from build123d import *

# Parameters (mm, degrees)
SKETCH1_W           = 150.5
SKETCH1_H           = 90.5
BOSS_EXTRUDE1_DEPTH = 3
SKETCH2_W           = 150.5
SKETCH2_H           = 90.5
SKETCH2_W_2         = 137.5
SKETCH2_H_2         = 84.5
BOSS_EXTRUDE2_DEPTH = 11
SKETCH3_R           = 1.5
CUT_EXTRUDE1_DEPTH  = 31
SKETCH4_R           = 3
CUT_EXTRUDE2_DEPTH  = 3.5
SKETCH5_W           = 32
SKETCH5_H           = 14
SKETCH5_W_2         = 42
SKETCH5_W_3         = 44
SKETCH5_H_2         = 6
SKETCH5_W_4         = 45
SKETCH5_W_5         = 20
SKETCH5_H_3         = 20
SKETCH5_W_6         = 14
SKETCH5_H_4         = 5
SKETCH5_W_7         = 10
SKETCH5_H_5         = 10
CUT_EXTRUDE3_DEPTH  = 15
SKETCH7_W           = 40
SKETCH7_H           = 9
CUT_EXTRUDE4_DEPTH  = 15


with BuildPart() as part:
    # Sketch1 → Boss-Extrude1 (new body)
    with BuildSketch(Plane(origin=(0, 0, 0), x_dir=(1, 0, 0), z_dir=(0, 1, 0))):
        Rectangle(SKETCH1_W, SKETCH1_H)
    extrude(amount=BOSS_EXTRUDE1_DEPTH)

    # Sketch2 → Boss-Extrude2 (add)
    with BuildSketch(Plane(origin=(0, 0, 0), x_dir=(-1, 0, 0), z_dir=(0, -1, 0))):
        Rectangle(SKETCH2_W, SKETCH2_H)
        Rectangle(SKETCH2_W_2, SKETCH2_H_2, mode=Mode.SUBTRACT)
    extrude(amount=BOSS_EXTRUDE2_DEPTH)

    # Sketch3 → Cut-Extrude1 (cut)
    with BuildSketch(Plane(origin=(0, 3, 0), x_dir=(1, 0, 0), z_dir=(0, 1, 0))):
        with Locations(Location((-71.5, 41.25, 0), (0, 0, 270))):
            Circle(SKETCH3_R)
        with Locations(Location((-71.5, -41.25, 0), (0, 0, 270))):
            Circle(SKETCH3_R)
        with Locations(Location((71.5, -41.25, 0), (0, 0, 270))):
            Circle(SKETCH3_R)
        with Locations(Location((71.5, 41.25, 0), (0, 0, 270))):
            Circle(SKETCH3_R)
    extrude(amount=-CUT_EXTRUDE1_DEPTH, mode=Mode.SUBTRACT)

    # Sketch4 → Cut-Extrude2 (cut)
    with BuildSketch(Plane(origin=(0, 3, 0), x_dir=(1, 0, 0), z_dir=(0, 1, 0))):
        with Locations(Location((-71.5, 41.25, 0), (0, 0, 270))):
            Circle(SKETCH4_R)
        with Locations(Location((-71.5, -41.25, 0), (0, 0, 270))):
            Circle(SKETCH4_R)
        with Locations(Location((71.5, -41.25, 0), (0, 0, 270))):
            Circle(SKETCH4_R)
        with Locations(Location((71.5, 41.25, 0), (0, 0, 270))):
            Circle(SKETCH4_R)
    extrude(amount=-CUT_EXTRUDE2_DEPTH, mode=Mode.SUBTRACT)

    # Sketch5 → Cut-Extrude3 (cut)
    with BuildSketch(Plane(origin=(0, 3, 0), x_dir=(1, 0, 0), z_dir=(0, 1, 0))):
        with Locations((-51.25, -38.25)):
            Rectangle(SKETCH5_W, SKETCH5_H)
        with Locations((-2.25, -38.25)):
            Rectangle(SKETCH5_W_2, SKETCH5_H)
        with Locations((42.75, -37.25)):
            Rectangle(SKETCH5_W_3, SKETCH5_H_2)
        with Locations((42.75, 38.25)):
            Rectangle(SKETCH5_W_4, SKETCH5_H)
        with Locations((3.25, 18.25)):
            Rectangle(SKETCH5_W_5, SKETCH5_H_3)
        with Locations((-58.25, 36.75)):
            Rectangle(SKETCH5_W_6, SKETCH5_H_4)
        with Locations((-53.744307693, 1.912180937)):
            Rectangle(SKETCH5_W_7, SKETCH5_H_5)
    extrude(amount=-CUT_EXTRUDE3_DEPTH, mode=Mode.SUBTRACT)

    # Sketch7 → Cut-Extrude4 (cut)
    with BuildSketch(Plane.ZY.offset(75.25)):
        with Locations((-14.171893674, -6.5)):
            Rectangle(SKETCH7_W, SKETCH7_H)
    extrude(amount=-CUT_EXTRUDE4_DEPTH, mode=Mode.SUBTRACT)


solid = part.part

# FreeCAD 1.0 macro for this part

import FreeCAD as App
import Part
import Sketcher

V = App.Vector
Q = App.Units.Quantity

doc = App.newDocument("Part")
body = doc.addObject("PartDesign::Body", "Body")

# Sketch on XZ plane
sketch1 = body.newObject("Sketcher::SketchObject", "Sketch")
sketch1.AttachmentSupport = (doc.getObject("XZ_Plane"), [""])
sketch1.MapMode = "FlatFace"
sketch1.addGeometry([
    Part.LineSegment(V(-75, -45, 0), V(-75, 45, 0)),
    Part.LineSegment(V(-75, 45, 0), V(75, 45, 0)),
    Part.LineSegment(V(75, 45, 0), V(75, -45, 0)),
    Part.LineSegment(V(75, -45, 0), V(-75, -45, 0)),
], False)
sketch1.addConstraint([
    Sketcher.Constraint("Coincident", 0, 2, 1, 1),
    Sketcher.Constraint("Coincident", 1, 2, 2, 1),
    Sketcher.Constraint("Coincident", 2, 2, 3, 1),
    Sketcher.Constraint("Coincident", 3, 2, 0, 1),
    Sketcher.Constraint("Vertical", 0),
    Sketcher.Constraint("Horizontal", 1),
    Sketcher.Constraint("Vertical", 2),
    Sketcher.Constraint("Horizontal", 3),
    Sketcher.Constraint("Symmetric", 0, 2, 2, 2, -1, 1),
    Sketcher.Constraint("DistanceX", 1, 1, 1, 2, Q("150.5 mm")),
    Sketcher.Constraint("DistanceY", 0, 1, 0, 2, Q("90.5 mm")),
])
pad1 = body.newObject("PartDesign::Pad", "Pad")
pad1.Profile = sketch1
pad1.Length = 3
pad1.Reversed = True

# Sketch on XZ plane
sketch2 = body.newObject("Sketcher::SketchObject", "Sketch001")
sketch2.AttachmentSupport = (doc.getObject("XZ_Plane"), [""])
sketch2.MapMode = "FlatFace"
sketch2.addGeometry([
    Part.LineSegment(V(75, -45, 0), V(75, 45, 0)),  # 0
    Part.LineSegment(V(75, 45, 0), V(-75, 45, 0)),  # 1
    Part.LineSegment(V(-75, 45, 0), V(-75, -45, 0)),  # 2
    Part.LineSegment(V(-75, -45, 0), V(75, -45, 0)),  # 3
    Part.LineSegment(V(-69, 42, 0), V(69, 42, 0)),  # 4
    Part.LineSegment(V(69, 42, 0), V(69, -42, 0)),  # 5
    Part.LineSegment(V(69, -42, 0), V(-69, -42, 0)),  # 6
    Part.LineSegment(V(-69, -42, 0), V(-69, 42, 0)),  # 7
], False)
sketch2.addConstraint([
    Sketcher.Constraint("Coincident", 0, 2, 1, 1),
    Sketcher.Constraint("Coincident", 1, 2, 2, 1),
    Sketcher.Constraint("Coincident", 2, 2, 3, 1),
    Sketcher.Constraint("Coincident", 3, 2, 0, 1),
    Sketcher.Constraint("Coincident", 4, 2, 5, 1),
    Sketcher.Constraint("Coincident", 5, 2, 6, 1),
    Sketcher.Constraint("Coincident", 6, 2, 7, 1),
    Sketcher.Constraint("Coincident", 7, 2, 4, 1),
    Sketcher.Constraint("Vertical", 0),
    Sketcher.Constraint("Horizontal", 1),
    Sketcher.Constraint("Vertical", 2),
    Sketcher.Constraint("Horizontal", 3),
    Sketcher.Constraint("Horizontal", 4),
    Sketcher.Constraint("Vertical", 5),
    Sketcher.Constraint("Horizontal", 6),
    Sketcher.Constraint("Vertical", 7),
    Sketcher.Constraint("Symmetric", 0, 2, 2, 2, -1, 1),
    Sketcher.Constraint("Symmetric", 4, 2, 6, 2, -1, 1),
    Sketcher.Constraint("DistanceX", 1, 2, 1, 1, Q("150.5 mm")),
    Sketcher.Constraint("DistanceX", 4, 1, 4, 2, Q("137.5 mm")),
    Sketcher.Constraint("DistanceY", 0, 1, 0, 2, Q("90.5 mm")),
    Sketcher.Constraint("DistanceY", 5, 2, 5, 1, Q("84.5 mm")),
])
pad2 = body.newObject("PartDesign::Pad", "Pad001")
pad2.Profile = sketch2
pad2.Length = 11

# Sketch on XZ plane
sketch3 = body.newObject("Sketcher::SketchObject", "Sketch002")
sketch3.AttachmentSupport = (doc.getObject("XZ_Plane"), [""])
sketch3.MapMode = "FlatFace"
sketch3.AttachmentOffset = App.Placement(V(0, 0, -3), App.Rotation())
sketch3.addGeometry([
    Part.Circle(V(-71.5, -41.2, 0), V(0, 0, 1), 1.5),
    Part.Circle(V(-71.5, 41.2, 0), V(0, 0, 1), 1.5),
    Part.Circle(V(71.5, 41.2, 0), V(0, 0, 1), 1.5),
    Part.Circle(V(71.5, -41.2, 0), V(0, 0, 1), 1.5),
], False)
sketch3.addConstraint([
    Sketcher.Constraint("Equal", 0, 1),
    Sketcher.Constraint("Equal", 1, 2),
    Sketcher.Constraint("Equal", 2, 3),
    Sketcher.Constraint("Symmetric", 0, 3, 2, 3, -1, 1),
    Sketcher.Constraint("Symmetric", 1, 3, 3, 3, -1, 1),
    Sketcher.Constraint("Symmetric", 1, 3, 2, 3, -2),
    Sketcher.Constraint("Diameter", 0, Q("3 mm")),
    Sketcher.Constraint("DistanceX", 1, 3, 2, 3, Q("143 mm")),
    Sketcher.Constraint("DistanceY", 0, 3, 1, 3, Q("82.5 mm")),
])
pocket1 = body.newObject("PartDesign::Pocket", "Pocket")
pocket1.Profile = sketch3
pocket1.Length = 31
pocket1.Reversed = True

# Sketch on XZ plane
sketch4 = body.newObject("Sketcher::SketchObject", "Sketch003")
sketch4.AttachmentSupport = (doc.getObject("XZ_Plane"), [""])
sketch4.MapMode = "FlatFace"
sketch4.AttachmentOffset = App.Placement(V(0, 0, -3), App.Rotation())
sketch4.addGeometry([
    Part.Circle(V(-71.5, -41.2, 0), V(0, 0, 1), 3),
    Part.Circle(V(-71.5, 41.2, 0), V(0, 0, 1), 3),
    Part.Circle(V(71.5, 41.2, 0), V(0, 0, 1), 3),
    Part.Circle(V(71.5, -41.2, 0), V(0, 0, 1), 3),
], False)
sketch4.addConstraint([
    Sketcher.Constraint("Equal", 0, 1),
    Sketcher.Constraint("Equal", 1, 2),
    Sketcher.Constraint("Equal", 2, 3),
    Sketcher.Constraint("Symmetric", 0, 3, 2, 3, -1, 1),
    Sketcher.Constraint("Symmetric", 1, 3, 3, 3, -1, 1),
    Sketcher.Constraint("Symmetric", 1, 3, 2, 3, -2),
    Sketcher.Constraint("Diameter", 0, Q("6 mm")),
    Sketcher.Constraint("DistanceX", 1, 3, 2, 3, Q("143 mm")),
    Sketcher.Constraint("DistanceY", 0, 3, 1, 3, Q("82.5 mm")),
])
pocket2 = body.newObject("PartDesign::Pocket", "Pocket001")
pocket2.Profile = sketch4
pocket2.Length = 3.5
pocket2.Reversed = True

# Sketch on XZ plane
sketch5 = body.newObject("Sketcher::SketchObject", "Sketch004")
sketch5.AttachmentSupport = (doc.getObject("XZ_Plane"), [""])
sketch5.MapMode = "FlatFace"
sketch5.AttachmentOffset = App.Placement(V(0, 0, -3), App.Rotation())
sketch5.addGeometry([
    Part.LineSegment(V(-67, 31, 0), V(-67, 45, 0)),  # 0
    Part.LineSegment(V(-67, 45, 0), V(-35, 45, 0)),  # 1
    Part.LineSegment(V(-35, 45, 0), V(-35, 31, 0)),  # 2
    Part.LineSegment(V(-35, 31, 0), V(-67, 31, 0)),  # 3
    Part.LineSegment(V(-23, 31, 0), V(-23, 45, 0)),  # 4
    Part.LineSegment(V(-23, 45, 0), V(19, 45, 0)),  # 5
    Part.LineSegment(V(19, 45, 0), V(19, 31, 0)),  # 6
    Part.LineSegment(V(19, 31, 0), V(-23, 31, 0)),  # 7
    Part.LineSegment(V(21, 34, 0), V(21, 40, 0)),  # 8
    Part.LineSegment(V(21, 40, 0), V(65, 40, 0)),  # 9
    Part.LineSegment(V(65, 40, 0), V(65, 34, 0)),  # 10
    Part.LineSegment(V(65, 34, 0), V(21, 34, 0)),  # 11
    Part.LineSegment(V(20, -45, 0), V(20, -31, 0)),  # 12
    Part.LineSegment(V(20, -31, 0), V(65, -31, 0)),  # 13
    Part.LineSegment(V(65, -31, 0), V(65, -45, 0)),  # 14
    Part.LineSegment(V(65, -45, 0), V(20, -45, 0)),  # 15
    Part.LineSegment(V(-7, -28, 0), V(-7, -8, 0)),  # 16
    Part.LineSegment(V(-7, -8, 0), V(13, -8, 0)),  # 17
    Part.LineSegment(V(13, -8, 0), V(13, -28, 0)),  # 18
    Part.LineSegment(V(13, -28, 0), V(-7, -28, 0)),  # 19
    Part.LineSegment(V(-65, -39, 0), V(-65, -34, 0)),  # 20
    Part.LineSegment(V(-65, -34, 0), V(-51, -34, 0)),  # 21
    Part.LineSegment(V(-51, -34, 0), V(-51, -39, 0)),  # 22
    Part.LineSegment(V(-51, -39, 0), V(-65, -39, 0)),  # 23
    Part.LineSegment(V(-59, -7, 0), V(-59, 3, 0)),  # 24
    Part.LineSegment(V(-59, 3, 0), V(-49, 3, 0)),  # 25
    Part.LineSegment(V(-49, 3, 0), V(-49, -7, 0)),  # 26
    Part.LineSegment(V(-49, -7, 0), V(-59, -7, 0)),  # 27
], False)
sketch5.addConstraint([
    Sketcher.Constraint("Coincident", 0, 2, 1, 1),
    Sketcher.Constraint("Coincident", 1, 2, 2, 1),
    Sketcher.Constraint("Coincident", 2, 2, 3, 1),
    Sketcher.Constraint("Coincident", 3, 2, 0, 1),
    Sketcher.Constraint("Coincident", 4, 2, 5, 1),
    Sketcher.Constraint("Coincident", 5, 2, 6, 1),
    Sketcher.Constraint("Coincident", 6, 2, 7, 1),
    Sketcher.Constraint("Coincident", 7, 2, 4, 1),
    Sketcher.Constraint("Coincident", 8, 2, 9, 1),
    Sketcher.Constraint("Coincident", 9, 2, 10, 1),
    Sketcher.Constraint("Coincident", 10, 2, 11, 1),
    Sketcher.Constraint("Coincident", 11, 2, 8, 1),
    Sketcher.Constraint("Coincident", 12, 2, 13, 1),
    Sketcher.Constraint("Coincident", 13, 2, 14, 1),
    Sketcher.Constraint("Coincident", 14, 2, 15, 1),
    Sketcher.Constraint("Coincident", 15, 2, 12, 1),
    Sketcher.Constraint("Coincident", 16, 2, 17, 1),
    Sketcher.Constraint("Coincident", 17, 2, 18, 1),
    Sketcher.Constraint("Coincident", 18, 2, 19, 1),
    Sketcher.Constraint("Coincident", 19, 2, 16, 1),
    Sketcher.Constraint("Coincident", 20, 2, 21, 1),
    Sketcher.Constraint("Coincident", 21, 2, 22, 1),
    Sketcher.Constraint("Coincident", 22, 2, 23, 1),
    Sketcher.Constraint("Coincident", 23, 2, 20, 1),
    Sketcher.Constraint("Coincident", 24, 2, 25, 1),
    Sketcher.Constraint("Coincident", 25, 2, 26, 1),
    Sketcher.Constraint("Coincident", 26, 2, 27, 1),
    Sketcher.Constraint("Coincident", 27, 2, 24, 1),
    Sketcher.Constraint("Vertical", 0),
    Sketcher.Constraint("Horizontal", 1),
    Sketcher.Constraint("Vertical", 2),
    Sketcher.Constraint("Horizontal", 3),
    Sketcher.Constraint("Vertical", 4),
    Sketcher.Constraint("Horizontal", 5),
    Sketcher.Constraint("Vertical", 6),
    Sketcher.Constraint("Horizontal", 7),
    Sketcher.Constraint("Vertical", 8),
    Sketcher.Constraint("Horizontal", 9),
    Sketcher.Constraint("Vertical", 10),
    Sketcher.Constraint("Horizontal", 11),
    Sketcher.Constraint("Vertical", 12),
    Sketcher.Constraint("Horizontal", 13),
    Sketcher.Constraint("Vertical", 14),
    Sketcher.Constraint("Horizontal", 15),
    Sketcher.Constraint("Vertical", 16),
    Sketcher.Constraint("Horizontal", 17),
    Sketcher.Constraint("Vertical", 18),
    Sketcher.Constraint("Horizontal", 19),
    Sketcher.Constraint("Vertical", 20),
    Sketcher.Constraint("Horizontal", 21),
    Sketcher.Constraint("Vertical", 22),
    Sketcher.Constraint("Horizontal", 23),
    Sketcher.Constraint("Vertical", 24),
    Sketcher.Constraint("Horizontal", 25),
    Sketcher.Constraint("Vertical", 26),
    Sketcher.Constraint("Horizontal", 27),
    Sketcher.Constraint("Horizontal", 1, 2, 4, 2),
    Sketcher.Constraint("Horizontal", 3, 2, 6, 2),
    Sketcher.Constraint("Equal", 23, 0),
    Sketcher.Constraint("Equal", 6, 12),
    Sketcher.Constraint("Equal", 19, 16),
    Sketcher.Constraint("Equal", 27, 24),
    Sketcher.Constraint("DistanceX", 1, 1, 1, 2, Q("32 mm")),
    Sketcher.Constraint("DistanceX", 5, 1, 5, 2, Q("42 mm")),
    Sketcher.Constraint("DistanceX", 9, 1, 9, 2, Q("44 mm")),
    Sketcher.Constraint("DistanceX", 13, 1, 13, 2, Q("45 mm")),
    Sketcher.Constraint("DistanceX", 17, 1, 17, 2, Q("20 mm")),
    Sketcher.Constraint("DistanceX", 21, 1, 21, 2, Q("14 mm")),
    Sketcher.Constraint("DistanceX", 25, 1, 25, 2, Q("10 mm")),
    Sketcher.Constraint("DistanceY", 8, 1, 8, 2, Q("6 mm")),
    Sketcher.Constraint("DistanceY", 20, 1, 20, 2, Q("5 mm")),
    Sketcher.Constraint("DistanceX", 1, 2, 4, 2, Q("12 mm")),
    Sketcher.Constraint("DistanceX", 5, 2, 8, 2, Q("2 mm")),
    Sketcher.Constraint("DistanceY", 8, 2, 5, 2, Q("5 mm")),
    Sketcher.Constraint("DistanceX", 16, 2, 12, 2, Q("27 mm")),
    Sketcher.Constraint("DistanceY", 12, 2, 16, 2, Q("23 mm")),
    Sketcher.Constraint("DistanceY", 20, 2, 19, 2, Q("6 mm")),
    Sketcher.Constraint("DistanceX", 3, 2, 20, 2, Q("2 mm")),
    Sketcher.Constraint("DistanceX", 6, 2, 12, 2, Q("1.5 mm")),
    Sketcher.Constraint("DistanceY", 12, 2, 6, 2, Q("62.5 mm")),
    Sketcher.Constraint("DistanceX", 0, 2, -1, 1, Q("67.25 mm")),
    Sketcher.Constraint("DistanceY", -1, 1, 0, 2, Q("45.25 mm")),
    Sketcher.Constraint("DistanceY", -1, 1, 24, 2, Q("3.087819 mm")),
    Sketcher.Constraint("DistanceX", 24, 2, -1, 1, Q("58.744308 mm")),
])
pocket3 = body.newObject("PartDesign::Pocket", "Pocket002")
pocket3.Profile = sketch5
pocket3.Length = 15
pocket3.Reversed = True

# Sketch on YZ plane
sketch6 = body.newObject("Sketcher::SketchObject", "Sketch005")
sketch6.AttachmentSupport = (doc.getObject("YZ_Plane"), [""])
sketch6.MapMode = "FlatFace"
sketch6.AttachmentOffset = App.Placement(V(0, 0, -75.25), App.Rotation())
sketch6.addGeometry([
    Part.LineSegment(V(-2, -34, 0), V(-11, -34, 0)),
    Part.LineSegment(V(-11, -34, 0), V(-11, 6, 0)),
    Part.LineSegment(V(-11, 6, 0), V(-2, 6, 0)),
    Part.LineSegment(V(-2, 6, 0), V(-2, -34, 0)),
], False)
sketch6.addConstraint([
    Sketcher.Constraint("Coincident", 0, 2, 1, 1),
    Sketcher.Constraint("Coincident", 1, 2, 2, 1),
    Sketcher.Constraint("Coincident", 2, 2, 3, 1),
    Sketcher.Constraint("Coincident", 3, 2, 0, 1),
    Sketcher.Constraint("Horizontal", 0),
    Sketcher.Constraint("Vertical", 1),
    Sketcher.Constraint("Horizontal", 2),
    Sketcher.Constraint("Vertical", 3),
    Sketcher.Constraint("DistanceX", 0, 2, 0, 1, Q("9 mm")),
    Sketcher.Constraint("DistanceY", 1, 1, 1, 2, Q("40 mm")),
    Sketcher.Constraint("DistanceX", 0, 2, -1, 1, Q("11 mm")),
    Sketcher.Constraint("DistanceY", 0, 2, -1, 1, Q("34.171894 mm")),
])
pocket4 = body.newObject("PartDesign::Pocket", "Pocket003")
pocket4.Profile = sketch6
pocket4.Length = 15
pocket4.Reversed = True

doc.recompute()
